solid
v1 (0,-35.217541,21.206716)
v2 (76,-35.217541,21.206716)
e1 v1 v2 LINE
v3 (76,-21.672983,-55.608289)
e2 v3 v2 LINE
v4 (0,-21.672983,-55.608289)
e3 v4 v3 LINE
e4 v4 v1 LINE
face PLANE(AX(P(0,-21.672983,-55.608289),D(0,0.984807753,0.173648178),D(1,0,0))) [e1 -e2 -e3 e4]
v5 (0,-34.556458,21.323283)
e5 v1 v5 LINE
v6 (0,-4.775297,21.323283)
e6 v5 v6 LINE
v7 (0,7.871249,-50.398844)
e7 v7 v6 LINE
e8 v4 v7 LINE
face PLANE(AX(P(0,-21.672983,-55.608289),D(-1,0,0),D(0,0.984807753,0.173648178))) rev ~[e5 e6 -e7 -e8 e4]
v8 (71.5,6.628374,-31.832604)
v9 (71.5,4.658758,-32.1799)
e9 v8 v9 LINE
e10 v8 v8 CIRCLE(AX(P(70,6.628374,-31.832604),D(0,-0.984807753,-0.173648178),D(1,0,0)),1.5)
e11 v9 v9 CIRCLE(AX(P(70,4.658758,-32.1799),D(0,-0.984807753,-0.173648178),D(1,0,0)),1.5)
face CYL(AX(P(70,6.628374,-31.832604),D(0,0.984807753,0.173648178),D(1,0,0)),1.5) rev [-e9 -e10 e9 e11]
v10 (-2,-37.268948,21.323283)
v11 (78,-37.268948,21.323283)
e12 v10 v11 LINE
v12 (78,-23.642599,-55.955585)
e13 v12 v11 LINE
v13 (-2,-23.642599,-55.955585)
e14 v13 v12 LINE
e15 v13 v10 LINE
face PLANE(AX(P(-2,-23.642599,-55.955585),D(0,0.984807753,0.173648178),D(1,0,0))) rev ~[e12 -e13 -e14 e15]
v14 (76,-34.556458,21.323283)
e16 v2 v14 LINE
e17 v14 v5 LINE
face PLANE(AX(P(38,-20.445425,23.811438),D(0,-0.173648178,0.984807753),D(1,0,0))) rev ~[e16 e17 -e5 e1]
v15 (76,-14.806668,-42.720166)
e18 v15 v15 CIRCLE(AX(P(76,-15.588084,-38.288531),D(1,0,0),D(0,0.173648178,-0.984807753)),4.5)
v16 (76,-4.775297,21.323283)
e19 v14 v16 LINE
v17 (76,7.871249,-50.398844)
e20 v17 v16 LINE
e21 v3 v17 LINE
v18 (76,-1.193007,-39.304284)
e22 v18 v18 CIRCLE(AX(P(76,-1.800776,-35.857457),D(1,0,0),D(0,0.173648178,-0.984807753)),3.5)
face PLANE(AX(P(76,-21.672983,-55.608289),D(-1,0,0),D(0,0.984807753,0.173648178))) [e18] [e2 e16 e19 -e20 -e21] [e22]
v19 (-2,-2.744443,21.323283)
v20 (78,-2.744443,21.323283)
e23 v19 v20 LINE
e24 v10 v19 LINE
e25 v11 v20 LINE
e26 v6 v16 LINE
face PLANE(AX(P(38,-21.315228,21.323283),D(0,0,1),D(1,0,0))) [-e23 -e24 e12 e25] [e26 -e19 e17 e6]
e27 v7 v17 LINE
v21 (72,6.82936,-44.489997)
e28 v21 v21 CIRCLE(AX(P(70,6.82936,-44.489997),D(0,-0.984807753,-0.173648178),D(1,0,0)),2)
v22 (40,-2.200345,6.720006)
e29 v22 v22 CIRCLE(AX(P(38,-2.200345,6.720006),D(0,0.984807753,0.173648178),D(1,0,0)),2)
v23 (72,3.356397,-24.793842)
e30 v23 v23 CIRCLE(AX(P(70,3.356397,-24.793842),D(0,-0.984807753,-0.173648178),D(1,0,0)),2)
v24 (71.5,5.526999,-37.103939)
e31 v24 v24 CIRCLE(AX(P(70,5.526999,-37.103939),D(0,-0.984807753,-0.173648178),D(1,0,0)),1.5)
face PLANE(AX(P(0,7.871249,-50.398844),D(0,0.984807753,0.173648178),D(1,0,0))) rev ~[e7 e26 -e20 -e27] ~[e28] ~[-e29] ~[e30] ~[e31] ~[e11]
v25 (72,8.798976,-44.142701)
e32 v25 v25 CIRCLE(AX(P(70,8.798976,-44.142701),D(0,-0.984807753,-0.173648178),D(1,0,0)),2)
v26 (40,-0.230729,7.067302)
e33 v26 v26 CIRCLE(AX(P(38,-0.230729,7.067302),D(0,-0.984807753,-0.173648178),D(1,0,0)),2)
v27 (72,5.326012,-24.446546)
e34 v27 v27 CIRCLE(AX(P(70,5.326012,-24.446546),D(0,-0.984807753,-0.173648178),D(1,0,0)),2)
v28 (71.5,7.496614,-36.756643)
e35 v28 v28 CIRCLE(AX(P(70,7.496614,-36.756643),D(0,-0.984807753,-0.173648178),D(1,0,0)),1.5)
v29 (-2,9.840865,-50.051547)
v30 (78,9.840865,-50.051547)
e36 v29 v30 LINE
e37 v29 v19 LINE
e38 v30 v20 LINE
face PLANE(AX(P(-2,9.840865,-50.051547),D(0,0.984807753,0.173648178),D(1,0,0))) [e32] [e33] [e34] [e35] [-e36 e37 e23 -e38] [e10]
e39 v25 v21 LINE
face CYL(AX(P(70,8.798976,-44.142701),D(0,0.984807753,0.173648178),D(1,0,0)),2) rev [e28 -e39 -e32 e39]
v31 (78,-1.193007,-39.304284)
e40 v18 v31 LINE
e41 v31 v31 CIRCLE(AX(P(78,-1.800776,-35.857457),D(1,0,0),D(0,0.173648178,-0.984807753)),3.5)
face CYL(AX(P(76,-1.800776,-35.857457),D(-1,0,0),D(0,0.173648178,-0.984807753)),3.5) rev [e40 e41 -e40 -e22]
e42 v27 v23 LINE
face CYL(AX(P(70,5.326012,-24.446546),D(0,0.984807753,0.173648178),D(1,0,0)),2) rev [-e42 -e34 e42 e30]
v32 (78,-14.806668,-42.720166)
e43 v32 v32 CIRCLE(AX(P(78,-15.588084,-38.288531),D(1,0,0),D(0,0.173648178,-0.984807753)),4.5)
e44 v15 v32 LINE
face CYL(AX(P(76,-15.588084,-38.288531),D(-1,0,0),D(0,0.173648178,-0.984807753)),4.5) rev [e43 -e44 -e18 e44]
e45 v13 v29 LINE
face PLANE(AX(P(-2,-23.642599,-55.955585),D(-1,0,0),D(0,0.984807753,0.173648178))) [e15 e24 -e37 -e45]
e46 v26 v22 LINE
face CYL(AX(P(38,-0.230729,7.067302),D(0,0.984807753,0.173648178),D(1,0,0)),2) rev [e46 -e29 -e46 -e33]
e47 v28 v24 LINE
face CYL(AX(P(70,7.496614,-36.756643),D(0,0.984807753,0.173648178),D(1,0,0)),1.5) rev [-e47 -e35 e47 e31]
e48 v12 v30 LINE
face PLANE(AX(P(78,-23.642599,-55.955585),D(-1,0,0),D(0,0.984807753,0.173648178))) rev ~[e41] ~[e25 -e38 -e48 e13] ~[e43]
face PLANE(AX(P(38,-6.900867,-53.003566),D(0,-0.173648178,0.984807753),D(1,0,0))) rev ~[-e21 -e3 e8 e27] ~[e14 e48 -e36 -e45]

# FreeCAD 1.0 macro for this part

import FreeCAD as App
import Part
import Sketcher

V = App.Vector

doc = App.newDocument("Part")
body = doc.addObject("PartDesign::Body", "Body")

# Sketch on XY plane
sketch1 = doc.addObject("Sketcher::SketchObject", "Sketch")
body.addObject(sketch1)
sketch1.AttachmentSupport = (doc.XY_Plane, [""])
sketch1.MapMode = "FlatFace"
sketch1.AttachmentOffset = App.Placement(V(0, 0, 20), App.Rotation())
sketch1.addGeometry(Part.Circle(V(15, -19, 0), V(0, 0, 1), 11), False)
sketch1.addConstraint(Sketcher.Constraint("Diameter", 0, 22.0))
sketch1.addConstraint(Sketcher.Constraint("DistanceX", -1, 1, 0, 3, 15.0))
sketch1.addConstraint(Sketcher.Constraint("DistanceY", 0, 3, -1, 1, 19.0))
pad1 = doc.addObject("PartDesign::Pad", "Pad")
body.addObject(pad1)
pad1.Profile = sketch1
pad1.Length = 2
body2 = doc.addObject("PartDesign::Body", "Body001")

# Sketch on XY plane
sketch2 = doc.addObject("Sketcher::SketchObject", "Sketch001")
body2.addObject(sketch2)
sketch2.AttachmentSupport = (doc.getObject("XY_Plane001"), [""])
sketch2.MapMode = "FlatFace"
sketch2.AttachmentOffset = App.Placement(V(0, 0, 20), App.Rotation())
sketch2.addGeometry(Part.Circle(V(62, -20, 0), V(0, 0, 1), 2.5), False)
sketch2.addConstraint(Sketcher.Constraint("Diameter", 0, 5.0))
sketch2.addConstraint(Sketcher.Constraint("DistanceX", -1, 1, 0, 3, 62.0))
sketch2.addConstraint(Sketcher.Constraint("DistanceY", 0, 3, -1, 1, 20.0))
pad2 = doc.addObject("PartDesign::Pad", "Pad001")
body2.addObject(pad2)
pad2.Profile = sketch2
pad2.Length = 2
body3 = doc.addObject("PartDesign::Body", "Body002")

# Sketch on XZ plane
sketch3 = doc.addObject("Sketcher::SketchObject", "Sketch002")
body3.addObject(sketch3)
sketch3.AttachmentSupport = (doc.getObject("XZ_Plane002"), [""])
sketch3.MapMode = "FlatFace"
sketch3.AttachmentOffset = App.Placement(V(0, 0, -1), App.Rotation())
sketch3.addGeometry(Part.Circle(V(70, -45, 0), V(0, 0, 1), 2), False)
sketch3.addConstraint(Sketcher.Constraint("Diameter", 0, 4.0))
sketch3.addConstraint(Sketcher.Constraint("DistanceX", -1, 1, 0, 3, 70.0))
sketch3.addConstraint(Sketcher.Constraint("DistanceY", 0, 3, -1, 1, 45.0))
pad3 = doc.addObject("PartDesign::Pad", "Pad002")
body3.addObject(pad3)
pad3.Profile = sketch3
pad3.Length = 2
body4 = doc.addObject("PartDesign::Body", "Body003")

# Sketch on YZ plane
sketch4 = doc.addObject("Sketcher::SketchObject", "Sketch003")
body4.addObject(sketch4)
sketch4.AttachmentSupport = (doc.getObject("YZ_Plane003"), [""])
sketch4.MapMode = "FlatFace"
sketch4.AttachmentOffset = App.Placement(V(0, 0, 76), App.Rotation())
sketch4.addGeometry(Part.Circle(V(-8, -35, 0), V(0, 0, 1), 3.5), False)
sketch4.addConstraint(Sketcher.Constraint("Diameter", 0, 7.0))
sketch4.addConstraint(Sketcher.Constraint("DistanceX", 0, 3, -1, 1, 8.0))
sketch4.addConstraint(Sketcher.Constraint("DistanceY", 0, 3, -1, 1, 35.0))
pad4 = doc.addObject("PartDesign::Pad", "Pad003")
body4.addObject(pad4)
pad4.Profile = sketch4
pad4.Length = 2
body5 = doc.addObject("PartDesign::Body", "Body004")

# Sketch on YZ plane
sketch5 = doc.addObject("Sketcher::SketchObject", "Sketch004")
body5.addObject(sketch5)
sketch5.AttachmentSupport = (doc.getObject("YZ_Plane004"), [""])
sketch5.MapMode = "FlatFace"
sketch5.AttachmentOffset = App.Placement(V(0, 0, 76), App.Rotation())
sketch5.addGeometry(Part.Circle(V(-22, -35, 0), V(0, 0, 1), 4.5), False)
sketch5.addConstraint(Sketcher.Constraint("Diameter", 0, 9.0))
sketch5.addConstraint(Sketcher.Constraint("DistanceX", 0, 3, -1, 1, 22.0))
sketch5.addConstraint(Sketcher.Constraint("DistanceY", 0, 3, -1, 1, 35.0))
pad5 = doc.addObject("PartDesign::Pad", "Pad004")
body5.addObject(pad5)
pad5.Profile = sketch5
pad5.Length = 2
body6 = doc.addObject("PartDesign::Body", "Body005")

# Sketch on XY plane
sketch6 = doc.addObject("Sketcher::SketchObject", "Sketch005")
body6.addObject(sketch6)
sketch6.AttachmentSupport = (doc.getObject("XY_Plane005"), [""])
sketch6.MapMode = "FlatFace"
sketch6.addGeometry(Part.LineSegment(V(0, 38, 0), V(0, 0, 0)), False)
sketch6.addGeometry(Part.LineSegment(V(0, 0, 0), V(80, 0, 0)), False)
sketch6.addGeometry(Part.LineSegment(V(80, 0, 0), V(80, 38, 0)), False)
sketch6.addGeometry(Part.LineSegment(V(80, 38, 0), V(0, 38, 0)), False)
sketch6.addConstraint(Sketcher.Constraint("Coincident", 0, 2, 1, 1))
sketch6.addConstraint(Sketcher.Constraint("Coincident", 1, 2, 2, 1))
sketch6.addConstraint(Sketcher.Constraint("Coincident", 2, 2, 3, 1))
sketch6.addConstraint(Sketcher.Constraint("Coincident", 3, 2, 0, 1))
sketch6.addConstraint(Sketcher.Constraint("Vertical", 0))
sketch6.addConstraint(Sketcher.Constraint("Horizontal", 1))
sketch6.addConstraint(Sketcher.Constraint("Vertical", 2))
sketch6.addConstraint(Sketcher.Constraint("Horizontal", 3))
sketch6.addConstraint(Sketcher.Constraint("Coincident", 0, 2, -1, 1))
sketch6.addConstraint(Sketcher.Constraint("DistanceX", 1, 1, 1, 2, 80.0))
sketch6.addConstraint(Sketcher.Constraint("DistanceY", 0, 2, 0, 1, 38.0))
pad6 = doc.addObject("PartDesign::Pad", "Pad005")
body6.addObject(pad6)
pad6.Profile = sketch6
pad6.Length = 8
body7 = doc.addObject("PartDesign::Body", "Body006")
doc.recompute()

body6.Placement = App.Placement(V(-2, -36, 28), App.Rotation(V(-1, 0, 0), 10))
boolean = doc.addObject("PartDesign::Boolean", "Boolean")
body7.addObject(boolean)
boolean.Type = "Fuse"
boolean.addObjects([body6])
body8 = doc.addObject("PartDesign::Body", "Body007")

# Sketch on XZ plane
sketch7 = doc.addObject("Sketcher::SketchObject", "Sketch006")
body8.addObject(sketch7)
sketch7.AttachmentSupport = (doc.getObject("XZ_Plane007"), [""])
sketch7.MapMode = "FlatFace"
sketch7.AttachmentOffset = App.Placement(V(0, 0, -1), App.Rotation())
sketch7.addGeometry(Part.Circle(V(38, 7, 0), V(0, 0, 1), 2), False)
sketch7.addConstraint(Sketcher.Constraint("Diameter", 0, 4.0))
sketch7.addConstraint(Sketcher.Constraint("DistanceX", -1, 1, 0, 3, 38.0))
sketch7.addConstraint(Sketcher.Constraint("DistanceY", -1, 1, 0, 3, 7.0))
pad7 = doc.addObject("PartDesign::Pad", "Pad006")
body8.addObject(pad7)
pad7.Profile = sketch7
pad7.Length = 3
body9 = doc.addObject("PartDesign::Body", "Body008")

# Sketch on XZ plane
sketch8 = doc.addObject("Sketcher::SketchObject", "Sketch007")
body9.addObject(sketch8)
sketch8.AttachmentSupport = (doc.getObject("XZ_Plane008"), [""])
sketch8.MapMode = "FlatFace"
sketch8.AttachmentOffset = App.Placement(V(0, 0, -1), App.Rotation())
sketch8.addGeometry(Part.Circle(V(70, -25, 0), V(0, 0, 1), 2), False)
sketch8.addConstraint(Sketcher.Constraint("Diameter", 0, 4.0))
sketch8.addConstraint(Sketcher.Constraint("DistanceX", -1, 1, 0, 3, 70.0))
sketch8.addConstraint(Sketcher.Constraint("DistanceY", 0, 3, -1, 1, 25.0))
pad8 = doc.addObject("PartDesign::Pad", "Pad007")
body9.addObject(pad8)
pad8.Profile = sketch8
pad8.Length = 2
body10 = doc.addObject("PartDesign::Body", "Body009")

# Sketch on XZ plane
sketch9 = doc.addObject("Sketcher::SketchObject", "Sketch008")
body10.addObject(sketch9)
sketch9.AttachmentSupport = (doc.getObject("XZ_Plane009"), [""])
sketch9.MapMode = "FlatFace"
sketch9.AttachmentOffset = App.Placement(V(0, 0, -1), App.Rotation())
sketch9.addGeometry(Part.Circle(V(70, -32.5, 0), V(0, 0, 1), 1.5), False)
sketch9.addConstraint(Sketcher.Constraint("Diameter", 0, 3.0))
sketch9.addConstraint(Sketcher.Constraint("DistanceX", -1, 1, 0, 3, 70.0))
sketch9.addConstraint(Sketcher.Constraint("DistanceY", 0, 3, -1, 1, 32.5))
pad9 = doc.addObject("PartDesign::Pad", "Pad008")
body10.addObject(pad9)
pad9.Profile = sketch9
pad9.Length = 2
body11 = doc.addObject("PartDesign::Body", "Body010")

# Sketch on XZ plane
sketch10 = doc.addObject("Sketcher::SketchObject", "Sketch009")
body11.addObject(sketch10)
sketch10.AttachmentSupport = (doc.getObject("XZ_Plane010"), [""])
sketch10.MapMode = "FlatFace"
sketch10.AttachmentOffset = App.Placement(V(0, 0, -1), App.Rotation())
sketch10.addGeometry(Part.Circle(V(70, -37.5, 0), V(0, 0, 1), 1.5), False)
sketch10.addConstraint(Sketcher.Constraint("Diameter", 0, 3.0))
sketch10.addConstraint(Sketcher.Constraint("DistanceX", -1, 1, 0, 3, 70.0))
sketch10.addConstraint(Sketcher.Constraint("DistanceY", 0, 3, -1, 1, 37.5))
pad10 = doc.addObject("PartDesign::Pad", "Pad009")
body11.addObject(pad10)
pad10.Profile = sketch10
pad10.Length = 2
body12 = doc.addObject("PartDesign::Body", "Body011")

# Sketch on XY plane
sketch11 = doc.addObject("Sketcher::SketchObject", "Sketch010")
body12.addObject(sketch11)
sketch11.AttachmentSupport = (doc.getObject("XY_Plane011"), [""])
sketch11.MapMode = "FlatFace"
sketch11.AttachmentOffset = App.Placement(V(0, 0, -51), App.Rotation())
sketch11.addGeometry(Part.LineSegment(V(0, -1, 0), V(0, -31, 0)), False)
sketch11.addGeometry(Part.LineSegment(V(0, -31, 0), V(76, -31, 0)), False)
sketch11.addGeometry(Part.LineSegment(V(76, -31, 0), V(76, -1, 0)), False)
sketch11.addGeometry(Part.LineSegment(V(76, -1, 0), V(0, -1, 0)), False)
sketch11.addConstraint(Sketcher.Constraint("Coincident", 0, 2, 1, 1))
sketch11.addConstraint(Sketcher.Constraint("Coincident", 1, 2, 2, 1))
sketch11.addConstraint(Sketcher.Constraint("Coincident", 2, 2, 3, 1))
sketch11.addConstraint(Sketcher.Constraint("Coincident", 3, 2, 0, 1))
sketch11.addConstraint(Sketcher.Constraint("Vertical", 0))
sketch11.addConstraint(Sketcher.Constraint("Horizontal", 1))
sketch11.addConstraint(Sketcher.Constraint("Vertical", 2))
sketch11.addConstraint(Sketcher.Constraint("Horizontal", 3))
sketch11.addConstraint(Sketcher.Constraint("PointOnObject", 0, 2, -2))
sketch11.addConstraint(Sketcher.Constraint("DistanceX", 1, 1, 1, 2, 76.0))
sketch11.addConstraint(Sketcher.Constraint("DistanceY", 0, 2, 0, 1, 30.0))
sketch11.addConstraint(Sketcher.Constraint("DistanceY", 0, 2, -1, 1, 31.0))
pad11 = doc.addObject("PartDesign::Pad", "Pad010")
body12.addObject(pad11)
pad11.Profile = sketch11
pad11.Length = 78
doc.recompute()

boolean2 = doc.addObject("PartDesign::Boolean", "Boolean001")
body12.addObject(boolean2)
boolean2.Type = "Fuse"
boolean2.addObjects([body])
doc.recompute()

boolean3 = doc.addObject("PartDesign::Boolean", "Boolean002")
body12.addObject(boolean3)
boolean3.Type = "Fuse"
boolean3.addObjects([body2])
doc.recompute()

boolean4 = doc.addObject("PartDesign::Boolean", "Boolean003")
body12.addObject(boolean4)
boolean4.Type = "Fuse"
boolean4.addObjects([body3])
doc.recompute()

boolean5 = doc.addObject("PartDesign::Boolean", "Boolean004")
body12.addObject(boolean5)
boolean5.Type = "Fuse"
boolean5.addObjects([body4])
doc.recompute()

boolean6 = doc.addObject("PartDesign::Boolean", "Boolean005")
body12.addObject(boolean6)
boolean6.Type = "Fuse"
boolean6.addObjects([body5])
doc.recompute()

boolean7 = doc.addObject("PartDesign::Boolean", "Boolean006")
body12.addObject(boolean7)
boolean7.Type = "Fuse"
boolean7.addObjects([body7])
doc.recompute()

boolean8 = doc.addObject("PartDesign::Boolean", "Boolean007")
body12.addObject(boolean8)
boolean8.Type = "Fuse"
boolean8.addObjects([body8])
doc.recompute()

boolean9 = doc.addObject("PartDesign::Boolean", "Boolean008")
body12.addObject(boolean9)
boolean9.Type = "Fuse"
boolean9.addObjects([body9])
doc.recompute()

boolean10 = doc.addObject("PartDesign::Boolean", "Boolean009")
body12.addObject(boolean10)
boolean10.Type = "Fuse"
boolean10.addObjects([body10])
doc.recompute()

boolean11 = doc.addObject("PartDesign::Boolean", "Boolean010")
body12.addObject(boolean11)
boolean11.Type = "Fuse"
boolean11.addObjects([body11])
body13 = doc.addObject("PartDesign::Body", "Body012")

# Sketch on XY plane
sketch12 = doc.addObject("Sketcher::SketchObject", "Sketch011")
body13.addObject(sketch12)
sketch12.AttachmentSupport = (doc.getObject("XY_Plane012"), [""])
sketch12.MapMode = "FlatFace"
sketch12.AttachmentOffset = App.Placement(V(0, 0, -51), App.Rotation())
sketch12.addGeometry(Part.LineSegment(V(-2, 1, 0), V(-2, -33, 0)), False)
sketch12.addGeometry(Part.LineSegment(V(-2, -33, 0), V(78, -33, 0)), False)
sketch12.addGeometry(Part.LineSegment(V(78, -33, 0), V(78, 1, 0)), False)
sketch12.addGeometry(Part.LineSegment(V(78, 1, 0), V(-2, 1, 0)), False)
sketch12.addConstraint(Sketcher.Constraint("Coincident", 0, 2, 1, 1))
sketch12.addConstraint(Sketcher.Constraint("Coincident", 1, 2, 2, 1))
sketch12.addConstraint(Sketcher.Constraint("Coincident", 2, 2, 3, 1))
sketch12.addConstraint(Sketcher.Constraint("Coincident", 3, 2, 0, 1))
sketch12.addConstraint(Sketcher.Constraint("Vertical", 0))
sketch12.addConstraint(Sketcher.Constraint("Horizontal", 1))
sketch12.addConstraint(Sketcher.Constraint("Vertical", 2))
sketch12.addConstraint(Sketcher.Constraint("Horizontal", 3))
sketch12.addConstraint(Sketcher.Constraint("DistanceX", 1, 1, 1, 2, 80.0))
sketch12.addConstraint(Sketcher.Constraint("DistanceY", 0, 2, 0, 1, 34.0))
sketch12.addConstraint(Sketcher.Constraint("DistanceX", 0, 2, -1, 1, 2.0))
sketch12.addConstraint(Sketcher.Constraint("DistanceY", 0, 2, -1, 1, 33.0))
pad12 = doc.addObject("PartDesign::Pad", "Pad011")
body13.addObject(pad12)
pad12.Profile = sketch12
pad12.Length = 80
doc.recompute()

boolean12 = doc.addObject("PartDesign::Boolean", "Boolean011")
body13.addObject(boolean12)
boolean12.Type = "Cut"
boolean12.addObjects([body12])
body14 = doc.addObject("PartDesign::Body", "Body013")
doc.recompute()

body13.Placement = App.Placement(V(0, 0, 0), App.Rotation(V(1, 0, 0), 10))
boolean13 = doc.addObject("PartDesign::Boolean", "Boolean012")
body14.addObject(boolean13)
boolean13.Type = "Fuse"
boolean13.addObjects([body13])

doc.recompute()
